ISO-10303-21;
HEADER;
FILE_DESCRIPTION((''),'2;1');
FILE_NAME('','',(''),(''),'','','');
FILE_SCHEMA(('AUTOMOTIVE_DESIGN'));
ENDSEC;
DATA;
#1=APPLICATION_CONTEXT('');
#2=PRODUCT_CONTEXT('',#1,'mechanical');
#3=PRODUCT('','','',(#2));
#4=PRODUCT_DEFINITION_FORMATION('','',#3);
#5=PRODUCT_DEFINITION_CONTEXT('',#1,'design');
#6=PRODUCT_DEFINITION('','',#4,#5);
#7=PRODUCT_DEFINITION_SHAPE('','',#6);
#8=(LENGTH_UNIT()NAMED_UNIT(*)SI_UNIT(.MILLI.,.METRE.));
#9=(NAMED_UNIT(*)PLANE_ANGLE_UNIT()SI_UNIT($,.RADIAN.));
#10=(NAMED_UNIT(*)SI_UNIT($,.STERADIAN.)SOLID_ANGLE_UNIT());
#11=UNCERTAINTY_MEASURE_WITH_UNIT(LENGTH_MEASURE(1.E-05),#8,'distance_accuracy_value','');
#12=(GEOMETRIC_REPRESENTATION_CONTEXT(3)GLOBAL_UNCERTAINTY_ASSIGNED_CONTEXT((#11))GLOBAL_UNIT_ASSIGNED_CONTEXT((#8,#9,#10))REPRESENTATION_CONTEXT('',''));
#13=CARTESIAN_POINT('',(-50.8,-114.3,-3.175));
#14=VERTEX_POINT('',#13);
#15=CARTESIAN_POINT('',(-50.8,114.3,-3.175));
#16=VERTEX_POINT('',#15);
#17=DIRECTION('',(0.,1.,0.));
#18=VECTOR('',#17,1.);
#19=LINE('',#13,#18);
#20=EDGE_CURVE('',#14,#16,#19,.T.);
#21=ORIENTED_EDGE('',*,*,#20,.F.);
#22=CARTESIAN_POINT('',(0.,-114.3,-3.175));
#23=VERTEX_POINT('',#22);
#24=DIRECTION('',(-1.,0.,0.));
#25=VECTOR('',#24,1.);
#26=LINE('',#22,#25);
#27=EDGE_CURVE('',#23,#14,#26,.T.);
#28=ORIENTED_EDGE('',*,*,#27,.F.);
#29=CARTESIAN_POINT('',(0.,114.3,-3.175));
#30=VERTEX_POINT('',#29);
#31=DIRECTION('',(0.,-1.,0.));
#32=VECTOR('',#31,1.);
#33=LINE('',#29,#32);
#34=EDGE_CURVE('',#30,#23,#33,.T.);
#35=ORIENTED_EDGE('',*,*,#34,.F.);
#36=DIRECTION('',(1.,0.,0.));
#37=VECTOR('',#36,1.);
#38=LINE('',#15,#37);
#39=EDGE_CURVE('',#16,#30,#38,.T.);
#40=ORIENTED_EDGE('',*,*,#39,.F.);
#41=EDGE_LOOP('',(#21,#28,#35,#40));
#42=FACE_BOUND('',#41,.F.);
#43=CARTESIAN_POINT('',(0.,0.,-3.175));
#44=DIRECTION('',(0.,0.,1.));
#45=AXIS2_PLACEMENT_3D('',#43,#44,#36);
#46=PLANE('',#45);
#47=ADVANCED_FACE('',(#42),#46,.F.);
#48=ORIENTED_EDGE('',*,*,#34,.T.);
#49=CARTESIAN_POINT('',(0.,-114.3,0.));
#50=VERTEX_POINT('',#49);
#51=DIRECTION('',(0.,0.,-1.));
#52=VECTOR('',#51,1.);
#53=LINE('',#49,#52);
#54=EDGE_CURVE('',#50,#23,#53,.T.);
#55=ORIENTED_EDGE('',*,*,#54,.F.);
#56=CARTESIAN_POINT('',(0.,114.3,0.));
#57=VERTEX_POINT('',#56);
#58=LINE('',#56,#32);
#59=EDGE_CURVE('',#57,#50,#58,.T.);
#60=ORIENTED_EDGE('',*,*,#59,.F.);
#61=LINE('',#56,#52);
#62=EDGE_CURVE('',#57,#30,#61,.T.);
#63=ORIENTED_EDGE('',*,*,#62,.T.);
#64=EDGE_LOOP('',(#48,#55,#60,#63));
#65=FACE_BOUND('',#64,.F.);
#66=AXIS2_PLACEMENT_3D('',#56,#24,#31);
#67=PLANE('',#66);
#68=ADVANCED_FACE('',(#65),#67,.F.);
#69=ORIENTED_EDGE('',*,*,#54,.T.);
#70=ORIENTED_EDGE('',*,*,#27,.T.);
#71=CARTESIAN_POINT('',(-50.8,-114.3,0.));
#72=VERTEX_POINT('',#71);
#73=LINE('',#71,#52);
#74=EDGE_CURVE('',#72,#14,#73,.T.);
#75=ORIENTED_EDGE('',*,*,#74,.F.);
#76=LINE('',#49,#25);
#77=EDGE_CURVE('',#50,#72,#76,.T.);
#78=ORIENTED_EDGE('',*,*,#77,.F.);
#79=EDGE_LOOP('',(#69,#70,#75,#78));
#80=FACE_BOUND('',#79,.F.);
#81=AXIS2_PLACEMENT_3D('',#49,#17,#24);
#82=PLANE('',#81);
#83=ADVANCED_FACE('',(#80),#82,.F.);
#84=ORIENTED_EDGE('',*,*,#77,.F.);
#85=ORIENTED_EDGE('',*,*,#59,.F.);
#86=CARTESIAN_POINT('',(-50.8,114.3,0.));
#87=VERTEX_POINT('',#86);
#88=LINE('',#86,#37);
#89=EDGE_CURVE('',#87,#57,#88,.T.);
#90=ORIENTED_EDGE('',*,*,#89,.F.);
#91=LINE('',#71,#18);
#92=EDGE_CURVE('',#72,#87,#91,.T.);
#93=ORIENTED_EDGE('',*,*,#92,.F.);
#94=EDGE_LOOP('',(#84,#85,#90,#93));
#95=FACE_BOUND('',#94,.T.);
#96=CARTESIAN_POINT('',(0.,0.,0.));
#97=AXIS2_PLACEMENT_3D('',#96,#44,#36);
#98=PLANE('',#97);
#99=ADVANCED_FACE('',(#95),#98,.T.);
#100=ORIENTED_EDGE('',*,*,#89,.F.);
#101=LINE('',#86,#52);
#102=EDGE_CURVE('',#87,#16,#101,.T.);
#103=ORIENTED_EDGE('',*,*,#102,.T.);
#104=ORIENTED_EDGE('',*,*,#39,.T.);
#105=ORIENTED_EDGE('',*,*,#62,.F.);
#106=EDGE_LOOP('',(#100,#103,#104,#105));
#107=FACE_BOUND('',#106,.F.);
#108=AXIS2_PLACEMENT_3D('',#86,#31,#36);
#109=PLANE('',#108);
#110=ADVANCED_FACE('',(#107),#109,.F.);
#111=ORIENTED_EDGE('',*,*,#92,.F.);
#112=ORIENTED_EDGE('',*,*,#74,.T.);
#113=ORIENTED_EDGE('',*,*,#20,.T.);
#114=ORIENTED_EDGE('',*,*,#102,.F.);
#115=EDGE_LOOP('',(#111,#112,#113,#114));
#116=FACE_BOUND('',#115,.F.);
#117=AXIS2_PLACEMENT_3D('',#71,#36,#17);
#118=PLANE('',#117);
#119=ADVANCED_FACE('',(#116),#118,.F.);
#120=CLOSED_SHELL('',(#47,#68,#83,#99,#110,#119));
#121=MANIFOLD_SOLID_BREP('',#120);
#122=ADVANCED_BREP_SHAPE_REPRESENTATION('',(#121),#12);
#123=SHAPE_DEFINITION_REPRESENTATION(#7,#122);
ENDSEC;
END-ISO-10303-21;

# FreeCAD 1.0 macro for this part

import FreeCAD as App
import Part
import Sketcher
from FreeCAD import Vector
Q = App.Units.Quantity

doc = App.newDocument("Part")
body = doc.addObject("PartDesign::Body", "Body")

sketch1 = body.newObject("Sketcher::SketchObject", "Sketch")
sketch1.AttachmentSupport = (doc.getObject("XY_Plane"), [""])
sketch1.MapMode = "FlatFace"
sketch1.addGeometry([
    Part.LineSegment(Vector(0, 114, 0), Vector(-51, 114, 0)),
    Part.LineSegment(Vector(-51, 114, 0), Vector(-51, -114, 0)),
    Part.LineSegment(Vector(-51, -114, 0), Vector(0, -114, 0)),
    Part.LineSegment(Vector(0, -114, 0), Vector(0, 114, 0)),
], False)
sketch1.addConstraint([
    Sketcher.Constraint("Coincident", 0, 2, 1, 1),
    Sketcher.Constraint("Coincident", 1, 2, 2, 1),
    Sketcher.Constraint("Coincident", 2, 2, 3, 1),
    Sketcher.Constraint("Coincident", 3, 2, 0, 1),
    Sketcher.Constraint("Horizontal", 0),
    Sketcher.Constraint("Vertical", 1),
    Sketcher.Constraint("Horizontal", 2),
    Sketcher.Constraint("Vertical", 3),
    Sketcher.Constraint("Symmetric", 2, 2, 3, 2, -1, 1),
    Sketcher.Constraint("DistanceX", 0, 2, 0, 1, Q("2 in")),
    Sketcher.Constraint("DistanceY", 1, 2, 1, 1, Q("9 in")),
])
pad1 = body.newObject("PartDesign::Pad", "Pad")
pad1.Profile = sketch1
pad1.Length = Q("0.125 in")
pad1.Reversed = True

doc.recompute()
